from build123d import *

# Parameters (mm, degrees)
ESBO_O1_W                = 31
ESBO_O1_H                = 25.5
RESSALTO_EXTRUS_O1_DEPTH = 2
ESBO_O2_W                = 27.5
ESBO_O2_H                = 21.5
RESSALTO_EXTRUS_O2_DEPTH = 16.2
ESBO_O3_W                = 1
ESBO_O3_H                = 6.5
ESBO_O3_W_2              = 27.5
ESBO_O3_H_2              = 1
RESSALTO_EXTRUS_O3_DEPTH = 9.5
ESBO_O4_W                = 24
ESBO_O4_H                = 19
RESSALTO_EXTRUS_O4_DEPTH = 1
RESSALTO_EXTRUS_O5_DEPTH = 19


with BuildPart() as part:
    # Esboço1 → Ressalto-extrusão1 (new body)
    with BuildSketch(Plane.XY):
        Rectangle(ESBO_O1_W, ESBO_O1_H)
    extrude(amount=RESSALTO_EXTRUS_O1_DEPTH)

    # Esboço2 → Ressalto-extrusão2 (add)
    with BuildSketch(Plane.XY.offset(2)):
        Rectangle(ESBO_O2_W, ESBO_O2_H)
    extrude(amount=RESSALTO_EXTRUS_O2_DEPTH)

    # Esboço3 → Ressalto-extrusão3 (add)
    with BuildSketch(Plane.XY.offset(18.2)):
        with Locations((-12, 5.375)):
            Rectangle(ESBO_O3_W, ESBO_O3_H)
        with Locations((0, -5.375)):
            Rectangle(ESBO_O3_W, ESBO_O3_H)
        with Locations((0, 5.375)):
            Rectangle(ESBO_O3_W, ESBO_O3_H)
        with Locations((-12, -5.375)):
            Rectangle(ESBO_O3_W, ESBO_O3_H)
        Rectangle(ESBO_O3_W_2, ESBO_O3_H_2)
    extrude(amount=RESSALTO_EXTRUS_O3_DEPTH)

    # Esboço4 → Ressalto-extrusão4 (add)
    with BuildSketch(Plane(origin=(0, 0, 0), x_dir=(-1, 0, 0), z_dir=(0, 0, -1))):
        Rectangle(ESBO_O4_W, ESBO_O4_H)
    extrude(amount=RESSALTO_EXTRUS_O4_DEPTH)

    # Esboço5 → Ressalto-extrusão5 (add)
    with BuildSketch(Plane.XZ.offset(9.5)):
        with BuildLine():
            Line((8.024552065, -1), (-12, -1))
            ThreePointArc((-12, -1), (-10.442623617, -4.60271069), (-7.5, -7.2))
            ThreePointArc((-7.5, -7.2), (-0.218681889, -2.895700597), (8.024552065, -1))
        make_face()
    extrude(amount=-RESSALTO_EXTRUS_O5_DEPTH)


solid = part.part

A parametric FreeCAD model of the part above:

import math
import FreeCAD as App
import Part
import Sketcher

V = App.Vector
Q = App.Units.Quantity


def add_polygon(sketch, points):
    """Adds a closed chain of lines whose ends are joined by coincident constraints."""
    first, n = sketch.GeometryCount, len(points)
    for a, b in zip(points, points[1:] + points[:1]):
        sketch.addGeometry(Part.LineSegment(App.Vector(*a, 0), App.Vector(*b, 0)), False)
    for i in range(n):
        sketch.addConstraint(Sketcher.Constraint("Coincident", first + i, 2, first + (i + 1) % n, 1))

doc = App.newDocument("Part")
body = doc.addObject("PartDesign::Body", "Body")

sketch1 = body.newObject("Sketcher::SketchObject", "Sketch")
sketch1.AttachmentSupport = (doc.getObject("XY_Plane"), [""])
sketch1.MapMode = "FlatFace"
add_polygon(sketch1, [(-16, 13), (-16, -13), (16, -13), (16, 13)])
sketch1.addConstraint(Sketcher.Constraint("Vertical", 0))
sketch1.addConstraint(Sketcher.Constraint("Horizontal", 1))
sketch1.addConstraint(Sketcher.Constraint("Vertical", 2))
sketch1.addConstraint(Sketcher.Constraint("Horizontal", 3))
sketch1.addConstraint(Sketcher.Constraint("Symmetric", 0, 2, 2, 2, -1, 1))
sketch1.addConstraint(Sketcher.Constraint("DistanceX", 1, 1, 1, 2, Q("31 mm")))
sketch1.addConstraint(Sketcher.Constraint("DistanceY", 0, 2, 0, 1, Q("25.5 mm")))
pad1 = body.newObject("PartDesign::Pad", "Pad")
pad1.Profile = sketch1
pad1.Length = 2

sketch2 = body.newObject("Sketcher::SketchObject", "Sketch001")
sketch2.AttachmentSupport = (doc.getObject("XY_Plane"), [""])
sketch2.MapMode = "FlatFace"
sketch2.AttachmentOffset = App.Placement(V(0, 0, 2), App.Rotation())
add_polygon(sketch2, [(-14, 11), (-14, -11), (14, -11), (14, 11)])
sketch2.addConstraint(Sketcher.Constraint("Vertical", 0))
sketch2.addConstraint(Sketcher.Constraint("Horizontal", 1))
sketch2.addConstraint(Sketcher.Constraint("Vertical", 2))
sketch2.addConstraint(Sketcher.Constraint("Horizontal", 3))
sketch2.addConstraint(Sketcher.Constraint("Symmetric", 0, 2, 2, 2, -1, 1))
sketch2.addConstraint(Sketcher.Constraint("DistanceX", 1, 1, 1, 2, Q("27.5 mm")))
sketch2.addConstraint(Sketcher.Constraint("DistanceY", 0, 2, 0, 1, Q("21.5 mm")))
pad2 = body.newObject("PartDesign::Pad", "Pad001")
pad2.Profile = sketch2
pad2.Length = 16.2

sketch3 = body.newObject("Sketcher::SketchObject", "Sketch002")
sketch3.AttachmentSupport = (doc.getObject("XY_Plane"), [""])
sketch3.MapMode = "FlatFace"
sketch3.AttachmentOffset = App.Placement(V(0, 0, 18.2), App.Rotation())
add_polygon(sketch3, [(-12.5, 8.6), (-12.5, 2.1), (-11.5, 2.1), (-11.5, 8.6)])
add_polygon(sketch3, [(-0.5, -2.1), (-0.5, -8.6), (0.5, -8.6), (0.5, -2.1)])
add_polygon(sketch3, [(-0.5, 8.6), (-0.5, 2.1), (0.5, 2.1), (0.5, 8.6)])
add_polygon(sketch3, [(-12.5, -2.1), (-12.5, -8.6), (-11.5, -8.6), (-11.5, -2.1)])
add_polygon(sketch3, [(-13.8, 0.5), (-13.8, -0.5), (13.8, -0.5), (13.8, 0.5)])
sketch3.addConstraint(Sketcher.Constraint("Vertical", 0))
sketch3.addConstraint(Sketcher.Constraint("Horizontal", 1))
sketch3.addConstraint(Sketcher.Constraint("Vertical", 2))
sketch3.addConstraint(Sketcher.Constraint("Horizontal", 3))
sketch3.addConstraint(Sketcher.Constraint("Vertical", 4))
sketch3.addConstraint(Sketcher.Constraint("Horizontal", 5))
sketch3.addConstraint(Sketcher.Constraint("Vertical", 6))
sketch3.addConstraint(Sketcher.Constraint("Horizontal", 7))
sketch3.addConstraint(Sketcher.Constraint("Vertical", 8))
sketch3.addConstraint(Sketcher.Constraint("Horizontal", 9))
sketch3.addConstraint(Sketcher.Constraint("Vertical", 10))
sketch3.addConstraint(Sketcher.Constraint("Horizontal", 11))
sketch3.addConstraint(Sketcher.Constraint("Vertical", 12))
sketch3.addConstraint(Sketcher.Constraint("Horizontal", 13))
sketch3.addConstraint(Sketcher.Constraint("Vertical", 14))
sketch3.addConstraint(Sketcher.Constraint("Horizontal", 15))
sketch3.addConstraint(Sketcher.Constraint("Vertical", 16))
sketch3.addConstraint(Sketcher.Constraint("Horizontal", 17))
sketch3.addConstraint(Sketcher.Constraint("Vertical", 18))
sketch3.addConstraint(Sketcher.Constraint("Horizontal", 19))
sketch3.addConstraint(Sketcher.Constraint("Symmetric", 6, 2, 8, 2, -1, 1))
sketch3.addConstraint(Sketcher.Constraint("Symmetric", 4, 2, 10, 2, -1, 1))
sketch3.addConstraint(Sketcher.Constraint("Symmetric", 16, 2, 18, 2, -1, 1))
sketch3.addConstraint(Sketcher.Constraint("Symmetric", 3, 2, 12, 2, -1))
sketch3.addConstraint(Sketcher.Constraint("Symmetric", 1, 2, 14, 2, -1))
sketch3.addConstraint(Sketcher.Constraint("Horizontal", 1, 2, 8, 2))
sketch3.addConstraint(Sketcher.Constraint("Horizontal", 3, 2, 10, 2))
sketch3.addConstraint(Sketcher.Constraint("Vertical", 7, 2, 8, 2))
sketch3.addConstraint(Sketcher.Constraint("Equal", 3, 5))
sketch3.addConstraint(Sketcher.Constraint("Equal", 15, 16))
sketch3.addConstraint(Sketcher.Constraint("DistanceX", 1, 1, 1, 2, Q("1 mm")))
sketch3.addConstraint(Sketcher.Constraint("DistanceX", 17, 1, 17, 2, Q("27.5 mm")))
sketch3.addConstraint(Sketcher.Constraint("DistanceY", 0, 2, 0, 1, Q("6.5 mm")))
sketch3.addConstraint(Sketcher.Constraint("DistanceX", 1, 2, 4, 2, Q("11 mm")))
sketch3.addConstraint(Sketcher.Constraint("DistanceY", 4, 2, 1, 2, Q("10.75 mm")))
pad3 = body.newObject("PartDesign::Pad", "Pad002")
pad3.Profile = sketch3
pad3.Length = 9.5

sketch4 = body.newObject("Sketcher::SketchObject", "Sketch003")
sketch4.AttachmentSupport = (doc.getObject("XY_Plane"), [""])
sketch4.MapMode = "FlatFace"
add_polygon(sketch4, [(12, 10), (12, -10), (-12, -10), (-12, 10)])
sketch4.addConstraint(Sketcher.Constraint("Vertical", 0))
sketch4.addConstraint(Sketcher.Constraint("Horizontal", 1))
sketch4.addConstraint(Sketcher.Constraint("Vertical", 2))
sketch4.addConstraint(Sketcher.Constraint("Horizontal", 3))
sketch4.addConstraint(Sketcher.Constraint("Symmetric", 0, 2, 2, 2, -1, 1))
sketch4.addConstraint(Sketcher.Constraint("DistanceX", 1, 2, 1, 1, Q("24 mm")))
sketch4.addConstraint(Sketcher.Constraint("DistanceY", 0, 2, 0, 1, Q("19 mm")))
pad4 = body.newObject("PartDesign::Pad", "Pad003")
pad4.Profile = sketch4
pad4.Length = 1
pad4.Reversed = True

sketch5 = body.newObject("Sketcher::SketchObject", "Sketch004")
sketch5.AttachmentSupport = (doc.getObject("XZ_Plane"), [""])
sketch5.MapMode = "FlatFace"
sketch5.AttachmentOffset = App.Placement(V(0, 0, 9.5), App.Rotation())
sketch5.addGeometry(Part.LineSegment(V(8, -1, 0), V(-12, -1, 0)), False)
sketch5.addGeometry(Part.ArcOfCircle(Part.Circle(V(-3, 1, 0), V(0, 0, 1), 9), math.radians(-169), math.radians(-119)), False)
sketch5.addGeometry(Part.ArcOfCircle(Part.Circle(V(10, -29, 0), V(0, 0, 1), 28), math.radians(94), math.radians(129)), False)
sketch5.addConstraint(Sketcher.Constraint("Coincident", 0, 2, 1, 1))
sketch5.addConstraint(Sketcher.Constraint("Coincident", 1, 2, 2, 2))
sketch5.addConstraint(Sketcher.Constraint("Coincident", 2, 1, 0, 1))
sketch5.addConstraint(Sketcher.Constraint("Horizontal", 0))
sketch5.addConstraint(Sketcher.Constraint("Radius", 1, Q("9 mm")))
sketch5.addConstraint(Sketcher.Constraint("DistanceX", 0, 2, -1, 1, Q("12 mm")))
sketch5.addConstraint(Sketcher.Constraint("DistanceY", 0, 2, -1, 1, Q("1 mm")))
sketch5.addConstraint(Sketcher.Constraint("DistanceX", 1, 2, -1, 1, Q("7.5 mm")))
sketch5.addConstraint(Sketcher.Constraint("DistanceY", 1, 2, -1, 1, Q("7.2 mm")))
sketch5.addConstraint(Sketcher.Constraint("Radius", 2, Q("27.585318 mm")))
sketch5.addConstraint(Sketcher.Constraint("DistanceX", 1, 3, 2, 3, Q("13.171198 mm")))
pad5 = body.newObject("PartDesign::Pad", "Pad004")
pad5.Profile = sketch5
pad5.Length = 19
pad5.Reversed = True

doc.recompute()
